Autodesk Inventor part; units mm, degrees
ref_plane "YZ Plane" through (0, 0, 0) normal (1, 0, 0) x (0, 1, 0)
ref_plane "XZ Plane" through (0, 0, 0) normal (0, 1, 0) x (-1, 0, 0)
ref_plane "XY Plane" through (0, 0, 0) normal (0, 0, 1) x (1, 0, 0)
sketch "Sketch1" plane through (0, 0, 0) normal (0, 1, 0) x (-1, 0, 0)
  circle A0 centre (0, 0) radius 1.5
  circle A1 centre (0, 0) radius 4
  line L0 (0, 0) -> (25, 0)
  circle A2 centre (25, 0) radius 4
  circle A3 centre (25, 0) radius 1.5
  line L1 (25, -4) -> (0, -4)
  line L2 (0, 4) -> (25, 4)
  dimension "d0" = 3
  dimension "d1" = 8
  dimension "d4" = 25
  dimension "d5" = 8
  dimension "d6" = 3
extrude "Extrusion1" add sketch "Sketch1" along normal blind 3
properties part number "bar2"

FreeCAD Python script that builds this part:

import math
import FreeCAD as App
import Part
import Sketcher

doc = App.newDocument("Part")
params = doc.addObject("Spreadsheet::Sheet", "Params")
for row, (alias, value) in enumerate([
    ("sketch1_diameter", "3 mm"),
    ("sketch1_radius", "4 mm"),
    ("sketch1_width", "25 mm"),
    ("pad1_length", "3 mm"),
], start=1):
    params.set(f"A{row}", alias)
    params.set(f"B{row}", "=" + value)
    params.setAlias(f"B{row}", alias)

body = doc.addObject("PartDesign::Body", "Body")

# Sketch on XZ plane
sketch1 = body.newObject("Sketcher::SketchObject", "Sketch")
sketch1.AttachmentSupport = (doc.getObject("XZ_Plane"), [""])
sketch1.MapMode = "FlatFace"
sketch1.addGeometry(Part.ArcOfCircle(Part.Circle(App.Vector(0, 0, 0), App.Vector(0, 0, 1), 4), math.radians(-90), math.radians(90)), False)
sketch1.addGeometry(Part.LineSegment(App.Vector(0, -4, 0), App.Vector(-25, -4, 0)), False)
sketch1.addGeometry(Part.ArcOfCircle(Part.Circle(App.Vector(-25, 0, 0), App.Vector(0, 0, 1), 4), math.radians(90), math.radians(270)), False)
sketch1.addGeometry(Part.LineSegment(App.Vector(-25, 4, 0), App.Vector(0, 4, 0)), False)
sketch1.addGeometry(Part.Circle(App.Vector(0, 0, 0), App.Vector(0, 0, 1), 1.5), False)
sketch1.addGeometry(Part.Circle(App.Vector(-25, 0, 0), App.Vector(0, 0, 1), 1.5), False)
sketch1.addConstraint(Sketcher.Constraint("Tangent", 0, 1, 1, 1))
sketch1.addConstraint(Sketcher.Constraint("Tangent", 1, 2, 2, 2))
sketch1.addConstraint(Sketcher.Constraint("Tangent", 2, 1, 3, 1))
sketch1.addConstraint(Sketcher.Constraint("Tangent", 3, 2, 0, 2))
sketch1.addConstraint(Sketcher.Constraint("Horizontal", 1))
sketch1.addConstraint(Sketcher.Constraint("Horizontal", 3))
sketch1.addConstraint(Sketcher.Constraint("Coincident", 0, 3, -1, 1))
sketch1.addConstraint(Sketcher.Constraint("Coincident", 4, 3, -1, 1))
sketch1.addConstraint(Sketcher.Constraint("Coincident", 5, 3, 2, 3))
sketch1.addConstraint(Sketcher.Constraint("Equal", 4, 5))
sketch1.addConstraint(Sketcher.Constraint("Diameter", 4, 3.0))
sketch1.addConstraint(Sketcher.Constraint("Radius", 0, 4.0))
sketch1.addConstraint(Sketcher.Constraint("DistanceX", 1, 2, 1, 1, 25.0))
sketch1.setExpression("Constraints[10]", "Params.sketch1_diameter")
sketch1.setExpression("Constraints[11]", "Params.sketch1_radius")
sketch1.setExpression("Constraints[12]", "Params.sketch1_width")
pad1 = body.newObject("PartDesign::Pad", "Pad")
pad1.Profile = sketch1
pad1.setExpression("Length", "Params.pad1_length")
pad1.Reversed = True

doc.recompute()
